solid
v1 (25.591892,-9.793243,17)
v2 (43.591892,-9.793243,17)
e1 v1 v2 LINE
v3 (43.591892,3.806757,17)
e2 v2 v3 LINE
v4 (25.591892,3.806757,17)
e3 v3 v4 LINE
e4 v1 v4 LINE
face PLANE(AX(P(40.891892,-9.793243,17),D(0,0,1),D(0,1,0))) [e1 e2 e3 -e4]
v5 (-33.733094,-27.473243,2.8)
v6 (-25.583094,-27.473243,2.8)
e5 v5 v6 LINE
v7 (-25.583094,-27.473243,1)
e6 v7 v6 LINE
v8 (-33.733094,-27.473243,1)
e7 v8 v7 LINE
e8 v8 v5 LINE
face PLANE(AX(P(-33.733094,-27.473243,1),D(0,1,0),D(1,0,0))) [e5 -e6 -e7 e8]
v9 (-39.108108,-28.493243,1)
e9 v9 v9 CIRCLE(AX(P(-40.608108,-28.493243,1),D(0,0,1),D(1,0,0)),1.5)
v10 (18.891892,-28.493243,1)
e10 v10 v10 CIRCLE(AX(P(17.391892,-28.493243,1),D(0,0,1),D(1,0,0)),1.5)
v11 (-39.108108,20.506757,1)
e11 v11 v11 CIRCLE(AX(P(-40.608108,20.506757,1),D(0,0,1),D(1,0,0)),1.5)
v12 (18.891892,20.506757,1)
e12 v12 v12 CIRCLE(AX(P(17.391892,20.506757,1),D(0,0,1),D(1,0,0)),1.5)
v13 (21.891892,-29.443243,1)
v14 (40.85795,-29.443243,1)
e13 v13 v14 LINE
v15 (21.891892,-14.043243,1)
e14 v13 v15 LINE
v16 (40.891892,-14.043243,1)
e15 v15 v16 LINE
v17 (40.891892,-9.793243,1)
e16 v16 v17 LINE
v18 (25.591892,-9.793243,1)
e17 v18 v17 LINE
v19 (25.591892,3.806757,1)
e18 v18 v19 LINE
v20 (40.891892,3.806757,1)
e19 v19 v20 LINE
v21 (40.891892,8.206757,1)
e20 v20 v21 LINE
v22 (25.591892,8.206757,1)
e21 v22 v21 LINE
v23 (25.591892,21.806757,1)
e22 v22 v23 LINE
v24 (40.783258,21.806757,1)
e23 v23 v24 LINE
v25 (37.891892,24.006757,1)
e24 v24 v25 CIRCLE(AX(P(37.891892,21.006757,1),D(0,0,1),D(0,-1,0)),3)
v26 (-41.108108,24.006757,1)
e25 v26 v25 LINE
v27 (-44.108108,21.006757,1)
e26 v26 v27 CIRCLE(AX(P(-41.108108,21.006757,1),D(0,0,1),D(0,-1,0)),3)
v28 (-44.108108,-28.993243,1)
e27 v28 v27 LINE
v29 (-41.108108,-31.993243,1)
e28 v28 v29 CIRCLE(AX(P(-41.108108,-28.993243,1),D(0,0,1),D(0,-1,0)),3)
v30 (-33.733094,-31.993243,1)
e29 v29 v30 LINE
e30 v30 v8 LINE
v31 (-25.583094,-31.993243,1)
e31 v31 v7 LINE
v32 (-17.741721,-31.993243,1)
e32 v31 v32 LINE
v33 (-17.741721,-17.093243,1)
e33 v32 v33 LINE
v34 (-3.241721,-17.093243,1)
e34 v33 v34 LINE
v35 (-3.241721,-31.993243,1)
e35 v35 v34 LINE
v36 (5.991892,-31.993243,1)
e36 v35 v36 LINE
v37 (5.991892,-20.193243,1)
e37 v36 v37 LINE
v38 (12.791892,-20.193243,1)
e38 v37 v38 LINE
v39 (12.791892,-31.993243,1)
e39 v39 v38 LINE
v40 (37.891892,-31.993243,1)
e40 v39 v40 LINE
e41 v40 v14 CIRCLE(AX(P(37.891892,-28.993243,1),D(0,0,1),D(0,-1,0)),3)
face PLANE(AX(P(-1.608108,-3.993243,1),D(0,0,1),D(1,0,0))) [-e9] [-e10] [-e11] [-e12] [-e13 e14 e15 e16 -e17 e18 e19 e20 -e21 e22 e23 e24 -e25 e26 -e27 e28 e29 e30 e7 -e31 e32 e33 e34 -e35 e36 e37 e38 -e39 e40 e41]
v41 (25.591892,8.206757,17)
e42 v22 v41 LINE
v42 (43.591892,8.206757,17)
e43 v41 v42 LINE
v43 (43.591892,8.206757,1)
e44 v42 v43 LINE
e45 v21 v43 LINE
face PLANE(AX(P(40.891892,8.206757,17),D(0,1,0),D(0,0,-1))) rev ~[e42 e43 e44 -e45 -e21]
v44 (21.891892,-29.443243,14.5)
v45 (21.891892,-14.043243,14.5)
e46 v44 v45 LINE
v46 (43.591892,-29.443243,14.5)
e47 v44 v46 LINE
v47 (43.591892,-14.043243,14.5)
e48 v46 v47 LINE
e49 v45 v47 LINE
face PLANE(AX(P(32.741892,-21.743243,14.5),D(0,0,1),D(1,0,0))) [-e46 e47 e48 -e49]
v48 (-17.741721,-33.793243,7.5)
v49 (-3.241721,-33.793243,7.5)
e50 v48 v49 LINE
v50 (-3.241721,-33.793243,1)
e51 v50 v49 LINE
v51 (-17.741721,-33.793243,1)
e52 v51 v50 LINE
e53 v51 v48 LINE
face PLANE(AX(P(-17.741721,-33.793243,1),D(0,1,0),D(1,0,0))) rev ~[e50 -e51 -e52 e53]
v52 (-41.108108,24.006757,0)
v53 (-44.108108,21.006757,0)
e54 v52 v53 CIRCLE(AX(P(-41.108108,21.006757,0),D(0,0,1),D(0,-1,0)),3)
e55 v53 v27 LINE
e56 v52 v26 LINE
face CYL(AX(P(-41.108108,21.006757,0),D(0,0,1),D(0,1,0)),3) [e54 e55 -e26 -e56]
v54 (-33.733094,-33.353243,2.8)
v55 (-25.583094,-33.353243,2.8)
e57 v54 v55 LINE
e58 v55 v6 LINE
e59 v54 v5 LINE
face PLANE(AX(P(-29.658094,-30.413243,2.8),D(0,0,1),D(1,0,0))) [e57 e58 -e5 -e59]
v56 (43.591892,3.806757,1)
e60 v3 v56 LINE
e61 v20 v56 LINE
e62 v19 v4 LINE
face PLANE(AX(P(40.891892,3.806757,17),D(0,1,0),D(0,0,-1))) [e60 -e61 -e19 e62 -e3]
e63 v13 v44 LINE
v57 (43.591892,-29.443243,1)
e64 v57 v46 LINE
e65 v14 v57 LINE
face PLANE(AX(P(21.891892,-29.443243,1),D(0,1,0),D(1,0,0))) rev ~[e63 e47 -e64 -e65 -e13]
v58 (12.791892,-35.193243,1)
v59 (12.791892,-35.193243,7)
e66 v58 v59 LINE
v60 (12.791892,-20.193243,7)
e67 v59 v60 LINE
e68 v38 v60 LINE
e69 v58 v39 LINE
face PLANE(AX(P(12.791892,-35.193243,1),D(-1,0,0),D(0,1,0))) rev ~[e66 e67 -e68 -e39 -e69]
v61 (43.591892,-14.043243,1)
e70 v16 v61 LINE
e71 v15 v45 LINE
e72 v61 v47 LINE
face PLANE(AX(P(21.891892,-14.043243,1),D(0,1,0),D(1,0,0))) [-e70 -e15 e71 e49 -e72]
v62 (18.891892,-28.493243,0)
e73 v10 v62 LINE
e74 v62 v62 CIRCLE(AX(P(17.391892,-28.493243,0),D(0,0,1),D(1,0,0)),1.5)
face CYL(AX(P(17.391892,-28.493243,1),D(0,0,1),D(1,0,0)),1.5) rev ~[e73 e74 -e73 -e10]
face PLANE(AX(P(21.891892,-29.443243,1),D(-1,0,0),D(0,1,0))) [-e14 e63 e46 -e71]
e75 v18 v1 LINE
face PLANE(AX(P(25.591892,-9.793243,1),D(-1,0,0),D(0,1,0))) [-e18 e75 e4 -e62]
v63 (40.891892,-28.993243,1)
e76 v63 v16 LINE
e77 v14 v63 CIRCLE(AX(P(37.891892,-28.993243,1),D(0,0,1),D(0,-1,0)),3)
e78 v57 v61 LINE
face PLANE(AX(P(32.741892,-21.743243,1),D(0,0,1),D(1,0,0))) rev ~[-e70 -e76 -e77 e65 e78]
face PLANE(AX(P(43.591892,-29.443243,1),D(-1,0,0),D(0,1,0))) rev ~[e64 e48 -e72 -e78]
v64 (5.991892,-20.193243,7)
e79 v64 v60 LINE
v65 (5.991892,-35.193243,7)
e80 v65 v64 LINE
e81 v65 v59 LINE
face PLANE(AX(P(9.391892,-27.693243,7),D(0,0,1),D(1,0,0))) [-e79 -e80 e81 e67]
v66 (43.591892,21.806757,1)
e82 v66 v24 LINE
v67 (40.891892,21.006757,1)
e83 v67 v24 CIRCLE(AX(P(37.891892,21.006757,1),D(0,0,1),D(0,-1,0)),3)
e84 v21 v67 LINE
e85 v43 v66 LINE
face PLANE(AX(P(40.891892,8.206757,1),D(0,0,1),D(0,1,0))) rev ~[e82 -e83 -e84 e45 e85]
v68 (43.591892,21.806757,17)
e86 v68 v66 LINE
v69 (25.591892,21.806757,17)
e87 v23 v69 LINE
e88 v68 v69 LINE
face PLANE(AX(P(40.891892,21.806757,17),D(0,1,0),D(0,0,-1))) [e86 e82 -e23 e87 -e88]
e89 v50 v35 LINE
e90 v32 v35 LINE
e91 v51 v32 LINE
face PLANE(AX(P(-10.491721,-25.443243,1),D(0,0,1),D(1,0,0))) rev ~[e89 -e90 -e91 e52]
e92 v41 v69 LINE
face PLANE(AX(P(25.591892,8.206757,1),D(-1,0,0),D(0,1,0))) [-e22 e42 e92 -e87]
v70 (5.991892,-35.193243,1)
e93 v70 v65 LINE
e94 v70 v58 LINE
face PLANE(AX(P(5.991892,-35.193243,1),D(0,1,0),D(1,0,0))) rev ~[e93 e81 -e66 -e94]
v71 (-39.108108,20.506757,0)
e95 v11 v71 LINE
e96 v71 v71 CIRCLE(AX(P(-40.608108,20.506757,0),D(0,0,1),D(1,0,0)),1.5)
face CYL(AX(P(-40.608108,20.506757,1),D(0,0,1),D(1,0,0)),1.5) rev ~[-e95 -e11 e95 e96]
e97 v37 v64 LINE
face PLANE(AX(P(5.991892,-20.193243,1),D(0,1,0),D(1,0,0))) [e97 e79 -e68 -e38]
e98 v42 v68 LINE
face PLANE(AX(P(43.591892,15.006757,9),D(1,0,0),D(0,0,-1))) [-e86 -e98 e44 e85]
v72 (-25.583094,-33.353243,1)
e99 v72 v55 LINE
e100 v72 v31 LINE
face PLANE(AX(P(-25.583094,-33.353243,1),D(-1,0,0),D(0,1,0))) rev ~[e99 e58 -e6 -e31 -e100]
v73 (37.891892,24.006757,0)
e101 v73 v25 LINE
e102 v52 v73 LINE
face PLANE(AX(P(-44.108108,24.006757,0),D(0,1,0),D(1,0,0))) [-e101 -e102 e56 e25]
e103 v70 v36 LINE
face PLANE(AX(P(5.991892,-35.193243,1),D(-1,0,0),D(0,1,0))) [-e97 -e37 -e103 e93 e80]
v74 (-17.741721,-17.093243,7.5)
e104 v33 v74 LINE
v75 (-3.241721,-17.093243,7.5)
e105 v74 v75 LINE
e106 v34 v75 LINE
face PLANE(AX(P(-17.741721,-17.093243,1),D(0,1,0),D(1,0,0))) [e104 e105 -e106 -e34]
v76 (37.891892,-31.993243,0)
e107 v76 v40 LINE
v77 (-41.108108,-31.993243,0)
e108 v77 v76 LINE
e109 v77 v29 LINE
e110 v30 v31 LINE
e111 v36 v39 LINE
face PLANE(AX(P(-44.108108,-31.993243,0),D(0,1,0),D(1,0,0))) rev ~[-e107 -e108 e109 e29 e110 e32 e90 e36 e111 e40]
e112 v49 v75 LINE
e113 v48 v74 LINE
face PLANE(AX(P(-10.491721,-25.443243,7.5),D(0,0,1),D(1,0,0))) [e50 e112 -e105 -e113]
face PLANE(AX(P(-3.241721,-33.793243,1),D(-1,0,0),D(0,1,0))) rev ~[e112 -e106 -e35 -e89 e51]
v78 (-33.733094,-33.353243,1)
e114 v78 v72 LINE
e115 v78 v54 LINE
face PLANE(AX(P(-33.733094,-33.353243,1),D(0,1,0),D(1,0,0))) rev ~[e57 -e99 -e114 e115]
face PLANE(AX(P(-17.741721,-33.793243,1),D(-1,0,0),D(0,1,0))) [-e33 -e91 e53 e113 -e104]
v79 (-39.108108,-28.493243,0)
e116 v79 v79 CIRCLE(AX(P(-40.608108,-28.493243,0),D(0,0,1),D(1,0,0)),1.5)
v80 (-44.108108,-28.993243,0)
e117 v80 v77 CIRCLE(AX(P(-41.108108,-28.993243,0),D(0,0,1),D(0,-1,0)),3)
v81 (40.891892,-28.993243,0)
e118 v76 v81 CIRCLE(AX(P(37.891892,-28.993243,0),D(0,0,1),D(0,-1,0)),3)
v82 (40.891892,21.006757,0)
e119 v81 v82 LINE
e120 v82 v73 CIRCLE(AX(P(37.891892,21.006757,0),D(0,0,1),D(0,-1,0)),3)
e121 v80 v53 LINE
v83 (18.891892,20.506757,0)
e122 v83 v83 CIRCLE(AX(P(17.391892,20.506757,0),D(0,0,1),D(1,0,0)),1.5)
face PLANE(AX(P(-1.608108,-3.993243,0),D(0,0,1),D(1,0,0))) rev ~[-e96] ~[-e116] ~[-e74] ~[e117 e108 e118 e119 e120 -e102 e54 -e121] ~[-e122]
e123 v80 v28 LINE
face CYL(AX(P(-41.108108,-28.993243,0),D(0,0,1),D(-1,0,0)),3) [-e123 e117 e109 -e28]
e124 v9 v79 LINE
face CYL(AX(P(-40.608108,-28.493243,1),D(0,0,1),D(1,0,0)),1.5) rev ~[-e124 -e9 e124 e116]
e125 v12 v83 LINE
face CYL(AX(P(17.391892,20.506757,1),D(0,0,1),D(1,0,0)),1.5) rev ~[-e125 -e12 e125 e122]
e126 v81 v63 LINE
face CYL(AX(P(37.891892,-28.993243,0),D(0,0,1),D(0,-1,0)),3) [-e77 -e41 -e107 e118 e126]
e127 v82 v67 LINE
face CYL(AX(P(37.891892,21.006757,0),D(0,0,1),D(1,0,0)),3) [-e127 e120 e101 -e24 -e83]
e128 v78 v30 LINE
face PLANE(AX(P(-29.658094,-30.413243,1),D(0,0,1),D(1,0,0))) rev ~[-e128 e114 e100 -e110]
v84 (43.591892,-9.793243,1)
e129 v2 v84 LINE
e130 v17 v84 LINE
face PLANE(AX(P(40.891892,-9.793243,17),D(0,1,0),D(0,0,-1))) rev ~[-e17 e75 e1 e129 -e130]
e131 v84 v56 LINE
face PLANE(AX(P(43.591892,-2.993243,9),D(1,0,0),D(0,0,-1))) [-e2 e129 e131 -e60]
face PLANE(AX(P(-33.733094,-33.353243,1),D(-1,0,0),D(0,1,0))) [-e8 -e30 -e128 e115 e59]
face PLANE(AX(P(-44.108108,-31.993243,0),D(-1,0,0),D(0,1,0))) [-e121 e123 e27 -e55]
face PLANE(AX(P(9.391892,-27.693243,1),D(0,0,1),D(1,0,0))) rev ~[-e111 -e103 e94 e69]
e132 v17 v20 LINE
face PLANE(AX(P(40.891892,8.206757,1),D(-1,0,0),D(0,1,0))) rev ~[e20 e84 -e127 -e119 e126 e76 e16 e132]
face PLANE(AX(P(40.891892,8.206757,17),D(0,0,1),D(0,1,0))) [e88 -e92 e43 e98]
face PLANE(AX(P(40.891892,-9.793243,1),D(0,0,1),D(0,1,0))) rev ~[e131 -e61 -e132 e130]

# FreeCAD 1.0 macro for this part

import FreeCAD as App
import Part
import Sketcher

V = App.Vector


def edges_at(feature, points):
    """Names of the edges that pass closest to the given points."""
    edges = feature.Shape.Edges
    near = lambda p: min(range(len(edges)), key=lambda i: edges[i].distToShape(Part.Vertex(*p))[0])
    return sorted({f"Edge{near(p) + 1}" for p in points})


def add_polygon(sketch, points):
    """Adds a closed chain of lines whose ends are joined by coincident constraints."""
    first, n = sketch.GeometryCount, len(points)
    for a, b in zip(points, points[1:] + points[:1]):
        sketch.addGeometry(Part.LineSegment(App.Vector(*a, 0), App.Vector(*b, 0)), False)
    for i in range(n):
        sketch.addConstraint(Sketcher.Constraint("Coincident", first + i, 2, first + (i + 1) % n, 1))

doc = App.newDocument("Part")
body = doc.addObject("PartDesign::Body", "Body")

# Sketch on XY plane
sketch1 = body.newObject("Sketcher::SketchObject", "Sketch")
sketch1.AttachmentSupport = (doc.getObject("XY_Plane"), [""])
sketch1.MapMode = "FlatFace"
add_polygon(sketch1, [(-44, 24), (-44, -32), (41, -32), (41, 24)])  # lines 0-3
sketch1.addConstraint(Sketcher.Constraint("Vertical", 0))
sketch1.addConstraint(Sketcher.Constraint("Horizontal", 1))
sketch1.addConstraint(Sketcher.Constraint("Vertical", 2))
sketch1.addConstraint(Sketcher.Constraint("Horizontal", 3))
sketch1.addConstraint(Sketcher.Constraint("DistanceX", 1, 1, 1, 2, 85.0))
sketch1.addConstraint(Sketcher.Constraint("DistanceY", 0, 2, 0, 1, 56.0))
sketch1.addConstraint(Sketcher.Constraint("DistanceX", 0, 2, -1, 1, 44.108108))
sketch1.addConstraint(Sketcher.Constraint("DistanceY", 0, 2, -1, 1, 31.993243))
pad1 = body.newObject("PartDesign::Pad", "Pad")
pad1.Profile = sketch1
pad1.Length = 1
doc.recompute()

fillet = body.newObject("PartDesign::Fillet", "Fillet")
fillet.Base = (pad1, edges_at(pad1, [(40.892, 24.007, 0.5)]))
fillet.Radius = 3
doc.recompute()

fillet2 = body.newObject("PartDesign::Fillet", "Fillet001")
fillet2.Base = (fillet, edges_at(fillet, [(-44.108, 24.007, 0.5)]))
fillet2.Radius = 3
doc.recompute()

fillet3 = body.newObject("PartDesign::Fillet", "Fillet002")
fillet3.Base = (fillet2, edges_at(fillet2, [(-44.108, -31.993, 0.5)]))
fillet3.Radius = 3
doc.recompute()

fillet4 = body.newObject("PartDesign::Fillet", "Fillet003")
fillet4.Base = (fillet3, edges_at(fillet3, [(40.892, -31.993, 0.5)]))
fillet4.Radius = 3

# Sketch on XY plane
sketch2 = body.newObject("Sketcher::SketchObject", "Sketch001")
sketch2.AttachmentSupport = (doc.getObject("XY_Plane"), [""])
sketch2.MapMode = "FlatFace"
sketch2.AttachmentOffset = App.Placement(V(0, 0, 1), App.Rotation())
sketch2.addGeometry(Part.Circle(V(-40.6, 20.5, 0), V(0, 0, 1), 1.5), False)
sketch2.addGeometry(Part.Circle(V(-40.6, -28.5, 0), V(0, 0, 1), 1.5), False)
sketch2.addGeometry(Part.Circle(V(17.4, -28.5, 0), V(0, 0, 1), 1.5), False)
sketch2.addGeometry(Part.Circle(V(17.4, 20.5, 0), V(0, 0, 1), 1.5), False)
sketch2.addConstraint(Sketcher.Constraint("Equal", 0, 1))
sketch2.addConstraint(Sketcher.Constraint("Equal", 1, 2))
sketch2.addConstraint(Sketcher.Constraint("Equal", 2, 3))
sketch2.addConstraint(Sketcher.Constraint("Horizontal", 1, 3, 2, 3))
sketch2.addConstraint(Sketcher.Constraint("Horizontal", 0, 3, 3, 3))
sketch2.addConstraint(Sketcher.Constraint("Vertical", 0, 3, 1, 3))
sketch2.addConstraint(Sketcher.Constraint("Vertical", 2, 3, 3, 3))
sketch2.addConstraint(Sketcher.Constraint("Diameter", 0, 3.0))
sketch2.addConstraint(Sketcher.Constraint("DistanceY", 1, 3, 0, 3, 49.0))
sketch2.addConstraint(Sketcher.Constraint("DistanceX", 1, 3, 2, 3, 58.0))
sketch2.addConstraint(Sketcher.Constraint("DistanceX", 0, 3, -1, 1, 40.608108))
sketch2.addConstraint(Sketcher.Constraint("DistanceY", -1, 1, 0, 3, 20.506757))
pocket1 = body.newObject("PartDesign::Pocket", "Pocket")
pocket1.Profile = sketch2
pocket1.Type = "ThroughAll"

# Sketch on XY plane
sketch3 = body.newObject("Sketcher::SketchObject", "Sketch002")
sketch3.AttachmentSupport = (doc.getObject("XY_Plane"), [""])
sketch3.MapMode = "FlatFace"
sketch3.AttachmentOffset = App.Placement(V(0, 0, 1), App.Rotation())
add_polygon(sketch3, [(26, 22), (26, 8), (41, 8), (41, 22)])  # lines 0-3
sketch3.addConstraint(Sketcher.Constraint("Vertical", 0))
sketch3.addConstraint(Sketcher.Constraint("Horizontal", 1))
sketch3.addConstraint(Sketcher.Constraint("Vertical", 2))
sketch3.addConstraint(Sketcher.Constraint("Horizontal", 3))
sketch3.addConstraint(Sketcher.Constraint("DistanceX", 1, 1, 1, 2, 15.3))
sketch3.addConstraint(Sketcher.Constraint("DistanceY", 0, 2, 0, 1, 13.6))
sketch3.addConstraint(Sketcher.Constraint("DistanceX", -1, 1, 0, 2, 25.591892))
sketch3.addConstraint(Sketcher.Constraint("DistanceY", -1, 1, 0, 2, 8.206757))
pad2 = body.newObject("PartDesign::Pad", "Pad001")
pad2.Profile = sketch3
pad2.Length = 16

# Sketch on YZ plane
sketch4 = body.newObject("Sketcher::SketchObject", "Sketch003")
sketch4.AttachmentSupport = (doc.getObject("YZ_Plane"), [""])
sketch4.MapMode = "FlatFace"
sketch4.AttachmentOffset = App.Placement(V(0, 0, 40.891892), App.Rotation())
add_polygon(sketch4, [(22, 17), (8, 17), (8, 1), (22, 1)])  # lines 0-3
sketch4.addConstraint(Sketcher.Constraint("Horizontal", 0))
sketch4.addConstraint(Sketcher.Constraint("Vertical", 1))
sketch4.addConstraint(Sketcher.Constraint("Horizontal", 2))
sketch4.addConstraint(Sketcher.Constraint("Vertical", 3))
sketch4.addConstraint(Sketcher.Constraint("DistanceY", 1, 2, 1, 1, 16.0))
sketch4.addConstraint(Sketcher.Constraint("DistanceX", 0, 2, 0, 1, 13.6))
sketch4.addConstraint(Sketcher.Constraint("DistanceY", -1, 1, 0, 2, 17.0))
sketch4.addConstraint(Sketcher.Constraint("DistanceX", -1, 1, 0, 2, 8.206757))
pad3 = body.newObject("PartDesign::Pad", "Pad002")
pad3.Profile = sketch4
pad3.Length = 2.7
doc.recompute()

linearpattern = body.newObject("PartDesign::LinearPattern", "LinearPattern")
linearpattern.Originals = [pad2]
linearpattern.Direction = (doc.getObject("Y_Axis"), [""])
linearpattern.Mode = "offset"
linearpattern.Offset = 18
linearpattern.Occurrences = 2
linearpattern.Reversed = True
body.Tip = linearpattern
doc.recompute()

linearpattern2 = body.newObject("PartDesign::LinearPattern", "LinearPattern001")
linearpattern2.Originals = [pad3]
linearpattern2.Direction = (doc.getObject("Y_Axis"), [""])
linearpattern2.Mode = "offset"
linearpattern2.Offset = 18
linearpattern2.Occurrences = 2
linearpattern2.Reversed = True
body.Tip = linearpattern2

# Sketch on XY plane
sketch5 = body.newObject("Sketcher::SketchObject", "Sketch004")
sketch5.AttachmentSupport = (doc.getObject("XY_Plane"), [""])
sketch5.MapMode = "FlatFace"
sketch5.AttachmentOffset = App.Placement(V(0, 0, 1), App.Rotation())
add_polygon(sketch5, [(22, -14), (22, -29), (44, -29), (44, -14)])  # lines 0-3
sketch5.addConstraint(Sketcher.Constraint("Vertical", 0))
sketch5.addConstraint(Sketcher.Constraint("Horizontal", 1))
sketch5.addConstraint(Sketcher.Constraint("Vertical", 2))
sketch5.addConstraint(Sketcher.Constraint("Horizontal", 3))
sketch5.addConstraint(Sketcher.Constraint("DistanceX", 1, 1, 1, 2, 21.7))
sketch5.addConstraint(Sketcher.Constraint("DistanceY", 0, 2, 0, 1, 15.4))
sketch5.addConstraint(Sketcher.Constraint("DistanceX", -1, 1, 0, 2, 21.891892))
sketch5.addConstraint(Sketcher.Constraint("DistanceY", 0, 2, -1, 1, 29.443243))
pad4 = body.newObject("PartDesign::Pad", "Pad003")
pad4.Profile = sketch5
pad4.Length = 13.5

# Sketch on XY plane
sketch6 = body.newObject("Sketcher::SketchObject", "Sketch005")
sketch6.AttachmentSupport = (doc.getObject("XY_Plane"), [""])
sketch6.MapMode = "FlatFace"
sketch6.AttachmentOffset = App.Placement(V(0, 0, 1), App.Rotation())
add_polygon(sketch6, [(6, -20), (6, -35), (13, -35), (13, -20)])  # lines 0-3
sketch6.addConstraint(Sketcher.Constraint("Vertical", 0))
sketch6.addConstraint(Sketcher.Constraint("Horizontal", 1))
sketch6.addConstraint(Sketcher.Constraint("Vertical", 2))
sketch6.addConstraint(Sketcher.Constraint("Horizontal", 3))
sketch6.addConstraint(Sketcher.Constraint("DistanceY", 0, 2, 0, 1, 15.0))
sketch6.addConstraint(Sketcher.Constraint("DistanceX", 1, 1, 1, 2, 6.8))
sketch6.addConstraint(Sketcher.Constraint("DistanceX", -1, 1, 0, 2, 5.991892))
sketch6.addConstraint(Sketcher.Constraint("DistanceY", 0, 2, -1, 1, 35.193243))
pad5 = body.newObject("PartDesign::Pad", "Pad004")
pad5.Profile = sketch6
pad5.Length = 6

# Sketch on XY plane
sketch7 = body.newObject("Sketcher::SketchObject", "Sketch006")
sketch7.AttachmentSupport = (doc.getObject("XY_Plane"), [""])
sketch7.MapMode = "FlatFace"
sketch7.AttachmentOffset = App.Placement(V(0, 0, 1), App.Rotation())
add_polygon(sketch7, [(-18, -17), (-18, -34), (-3, -34), (-3, -17)])  # lines 0-3
sketch7.addConstraint(Sketcher.Constraint("Vertical", 0))
sketch7.addConstraint(Sketcher.Constraint("Horizontal", 1))
sketch7.addConstraint(Sketcher.Constraint("Vertical", 2))
sketch7.addConstraint(Sketcher.Constraint("Horizontal", 3))
sketch7.addConstraint(Sketcher.Constraint("DistanceX", 1, 1, 1, 2, 14.5))
sketch7.addConstraint(Sketcher.Constraint("DistanceY", 0, 2, 0, 1, 16.7))
sketch7.addConstraint(Sketcher.Constraint("DistanceX", 0, 2, -1, 1, 17.741721))
sketch7.addConstraint(Sketcher.Constraint("DistanceY", 0, 2, -1, 1, 33.793243))
pad6 = body.newObject("PartDesign::Pad", "Pad005")
pad6.Profile = sketch7
pad6.Length = 6.5

# Sketch on XY plane
sketch8 = body.newObject("Sketcher::SketchObject", "Sketch007")
sketch8.AttachmentSupport = (doc.getObject("XY_Plane"), [""])
sketch8.MapMode = "FlatFace"
sketch8.AttachmentOffset = App.Placement(V(0, 0, 1), App.Rotation())
add_polygon(sketch8, [(-34, -27), (-34, -33), (-26, -33), (-26, -27)])  # lines 0-3
sketch8.addConstraint(Sketcher.Constraint("Vertical", 0))
sketch8.addConstraint(Sketcher.Constraint("Horizontal", 1))
sketch8.addConstraint(Sketcher.Constraint("Vertical", 2))
sketch8.addConstraint(Sketcher.Constraint("Horizontal", 3))
sketch8.addConstraint(Sketcher.Constraint("DistanceX", 1, 1, 1, 2, 8.15))
sketch8.addConstraint(Sketcher.Constraint("DistanceY", 0, 2, 0, 1, 5.88))
sketch8.addConstraint(Sketcher.Constraint("DistanceX", 0, 2, -1, 1, 33.733094))
sketch8.addConstraint(Sketcher.Constraint("DistanceY", 0, 2, -1, 1, 33.353243))
pad7 = body.newObject("PartDesign::Pad", "Pad006")
pad7.Profile = sketch8
pad7.Length = 1.8

doc.recompute()
